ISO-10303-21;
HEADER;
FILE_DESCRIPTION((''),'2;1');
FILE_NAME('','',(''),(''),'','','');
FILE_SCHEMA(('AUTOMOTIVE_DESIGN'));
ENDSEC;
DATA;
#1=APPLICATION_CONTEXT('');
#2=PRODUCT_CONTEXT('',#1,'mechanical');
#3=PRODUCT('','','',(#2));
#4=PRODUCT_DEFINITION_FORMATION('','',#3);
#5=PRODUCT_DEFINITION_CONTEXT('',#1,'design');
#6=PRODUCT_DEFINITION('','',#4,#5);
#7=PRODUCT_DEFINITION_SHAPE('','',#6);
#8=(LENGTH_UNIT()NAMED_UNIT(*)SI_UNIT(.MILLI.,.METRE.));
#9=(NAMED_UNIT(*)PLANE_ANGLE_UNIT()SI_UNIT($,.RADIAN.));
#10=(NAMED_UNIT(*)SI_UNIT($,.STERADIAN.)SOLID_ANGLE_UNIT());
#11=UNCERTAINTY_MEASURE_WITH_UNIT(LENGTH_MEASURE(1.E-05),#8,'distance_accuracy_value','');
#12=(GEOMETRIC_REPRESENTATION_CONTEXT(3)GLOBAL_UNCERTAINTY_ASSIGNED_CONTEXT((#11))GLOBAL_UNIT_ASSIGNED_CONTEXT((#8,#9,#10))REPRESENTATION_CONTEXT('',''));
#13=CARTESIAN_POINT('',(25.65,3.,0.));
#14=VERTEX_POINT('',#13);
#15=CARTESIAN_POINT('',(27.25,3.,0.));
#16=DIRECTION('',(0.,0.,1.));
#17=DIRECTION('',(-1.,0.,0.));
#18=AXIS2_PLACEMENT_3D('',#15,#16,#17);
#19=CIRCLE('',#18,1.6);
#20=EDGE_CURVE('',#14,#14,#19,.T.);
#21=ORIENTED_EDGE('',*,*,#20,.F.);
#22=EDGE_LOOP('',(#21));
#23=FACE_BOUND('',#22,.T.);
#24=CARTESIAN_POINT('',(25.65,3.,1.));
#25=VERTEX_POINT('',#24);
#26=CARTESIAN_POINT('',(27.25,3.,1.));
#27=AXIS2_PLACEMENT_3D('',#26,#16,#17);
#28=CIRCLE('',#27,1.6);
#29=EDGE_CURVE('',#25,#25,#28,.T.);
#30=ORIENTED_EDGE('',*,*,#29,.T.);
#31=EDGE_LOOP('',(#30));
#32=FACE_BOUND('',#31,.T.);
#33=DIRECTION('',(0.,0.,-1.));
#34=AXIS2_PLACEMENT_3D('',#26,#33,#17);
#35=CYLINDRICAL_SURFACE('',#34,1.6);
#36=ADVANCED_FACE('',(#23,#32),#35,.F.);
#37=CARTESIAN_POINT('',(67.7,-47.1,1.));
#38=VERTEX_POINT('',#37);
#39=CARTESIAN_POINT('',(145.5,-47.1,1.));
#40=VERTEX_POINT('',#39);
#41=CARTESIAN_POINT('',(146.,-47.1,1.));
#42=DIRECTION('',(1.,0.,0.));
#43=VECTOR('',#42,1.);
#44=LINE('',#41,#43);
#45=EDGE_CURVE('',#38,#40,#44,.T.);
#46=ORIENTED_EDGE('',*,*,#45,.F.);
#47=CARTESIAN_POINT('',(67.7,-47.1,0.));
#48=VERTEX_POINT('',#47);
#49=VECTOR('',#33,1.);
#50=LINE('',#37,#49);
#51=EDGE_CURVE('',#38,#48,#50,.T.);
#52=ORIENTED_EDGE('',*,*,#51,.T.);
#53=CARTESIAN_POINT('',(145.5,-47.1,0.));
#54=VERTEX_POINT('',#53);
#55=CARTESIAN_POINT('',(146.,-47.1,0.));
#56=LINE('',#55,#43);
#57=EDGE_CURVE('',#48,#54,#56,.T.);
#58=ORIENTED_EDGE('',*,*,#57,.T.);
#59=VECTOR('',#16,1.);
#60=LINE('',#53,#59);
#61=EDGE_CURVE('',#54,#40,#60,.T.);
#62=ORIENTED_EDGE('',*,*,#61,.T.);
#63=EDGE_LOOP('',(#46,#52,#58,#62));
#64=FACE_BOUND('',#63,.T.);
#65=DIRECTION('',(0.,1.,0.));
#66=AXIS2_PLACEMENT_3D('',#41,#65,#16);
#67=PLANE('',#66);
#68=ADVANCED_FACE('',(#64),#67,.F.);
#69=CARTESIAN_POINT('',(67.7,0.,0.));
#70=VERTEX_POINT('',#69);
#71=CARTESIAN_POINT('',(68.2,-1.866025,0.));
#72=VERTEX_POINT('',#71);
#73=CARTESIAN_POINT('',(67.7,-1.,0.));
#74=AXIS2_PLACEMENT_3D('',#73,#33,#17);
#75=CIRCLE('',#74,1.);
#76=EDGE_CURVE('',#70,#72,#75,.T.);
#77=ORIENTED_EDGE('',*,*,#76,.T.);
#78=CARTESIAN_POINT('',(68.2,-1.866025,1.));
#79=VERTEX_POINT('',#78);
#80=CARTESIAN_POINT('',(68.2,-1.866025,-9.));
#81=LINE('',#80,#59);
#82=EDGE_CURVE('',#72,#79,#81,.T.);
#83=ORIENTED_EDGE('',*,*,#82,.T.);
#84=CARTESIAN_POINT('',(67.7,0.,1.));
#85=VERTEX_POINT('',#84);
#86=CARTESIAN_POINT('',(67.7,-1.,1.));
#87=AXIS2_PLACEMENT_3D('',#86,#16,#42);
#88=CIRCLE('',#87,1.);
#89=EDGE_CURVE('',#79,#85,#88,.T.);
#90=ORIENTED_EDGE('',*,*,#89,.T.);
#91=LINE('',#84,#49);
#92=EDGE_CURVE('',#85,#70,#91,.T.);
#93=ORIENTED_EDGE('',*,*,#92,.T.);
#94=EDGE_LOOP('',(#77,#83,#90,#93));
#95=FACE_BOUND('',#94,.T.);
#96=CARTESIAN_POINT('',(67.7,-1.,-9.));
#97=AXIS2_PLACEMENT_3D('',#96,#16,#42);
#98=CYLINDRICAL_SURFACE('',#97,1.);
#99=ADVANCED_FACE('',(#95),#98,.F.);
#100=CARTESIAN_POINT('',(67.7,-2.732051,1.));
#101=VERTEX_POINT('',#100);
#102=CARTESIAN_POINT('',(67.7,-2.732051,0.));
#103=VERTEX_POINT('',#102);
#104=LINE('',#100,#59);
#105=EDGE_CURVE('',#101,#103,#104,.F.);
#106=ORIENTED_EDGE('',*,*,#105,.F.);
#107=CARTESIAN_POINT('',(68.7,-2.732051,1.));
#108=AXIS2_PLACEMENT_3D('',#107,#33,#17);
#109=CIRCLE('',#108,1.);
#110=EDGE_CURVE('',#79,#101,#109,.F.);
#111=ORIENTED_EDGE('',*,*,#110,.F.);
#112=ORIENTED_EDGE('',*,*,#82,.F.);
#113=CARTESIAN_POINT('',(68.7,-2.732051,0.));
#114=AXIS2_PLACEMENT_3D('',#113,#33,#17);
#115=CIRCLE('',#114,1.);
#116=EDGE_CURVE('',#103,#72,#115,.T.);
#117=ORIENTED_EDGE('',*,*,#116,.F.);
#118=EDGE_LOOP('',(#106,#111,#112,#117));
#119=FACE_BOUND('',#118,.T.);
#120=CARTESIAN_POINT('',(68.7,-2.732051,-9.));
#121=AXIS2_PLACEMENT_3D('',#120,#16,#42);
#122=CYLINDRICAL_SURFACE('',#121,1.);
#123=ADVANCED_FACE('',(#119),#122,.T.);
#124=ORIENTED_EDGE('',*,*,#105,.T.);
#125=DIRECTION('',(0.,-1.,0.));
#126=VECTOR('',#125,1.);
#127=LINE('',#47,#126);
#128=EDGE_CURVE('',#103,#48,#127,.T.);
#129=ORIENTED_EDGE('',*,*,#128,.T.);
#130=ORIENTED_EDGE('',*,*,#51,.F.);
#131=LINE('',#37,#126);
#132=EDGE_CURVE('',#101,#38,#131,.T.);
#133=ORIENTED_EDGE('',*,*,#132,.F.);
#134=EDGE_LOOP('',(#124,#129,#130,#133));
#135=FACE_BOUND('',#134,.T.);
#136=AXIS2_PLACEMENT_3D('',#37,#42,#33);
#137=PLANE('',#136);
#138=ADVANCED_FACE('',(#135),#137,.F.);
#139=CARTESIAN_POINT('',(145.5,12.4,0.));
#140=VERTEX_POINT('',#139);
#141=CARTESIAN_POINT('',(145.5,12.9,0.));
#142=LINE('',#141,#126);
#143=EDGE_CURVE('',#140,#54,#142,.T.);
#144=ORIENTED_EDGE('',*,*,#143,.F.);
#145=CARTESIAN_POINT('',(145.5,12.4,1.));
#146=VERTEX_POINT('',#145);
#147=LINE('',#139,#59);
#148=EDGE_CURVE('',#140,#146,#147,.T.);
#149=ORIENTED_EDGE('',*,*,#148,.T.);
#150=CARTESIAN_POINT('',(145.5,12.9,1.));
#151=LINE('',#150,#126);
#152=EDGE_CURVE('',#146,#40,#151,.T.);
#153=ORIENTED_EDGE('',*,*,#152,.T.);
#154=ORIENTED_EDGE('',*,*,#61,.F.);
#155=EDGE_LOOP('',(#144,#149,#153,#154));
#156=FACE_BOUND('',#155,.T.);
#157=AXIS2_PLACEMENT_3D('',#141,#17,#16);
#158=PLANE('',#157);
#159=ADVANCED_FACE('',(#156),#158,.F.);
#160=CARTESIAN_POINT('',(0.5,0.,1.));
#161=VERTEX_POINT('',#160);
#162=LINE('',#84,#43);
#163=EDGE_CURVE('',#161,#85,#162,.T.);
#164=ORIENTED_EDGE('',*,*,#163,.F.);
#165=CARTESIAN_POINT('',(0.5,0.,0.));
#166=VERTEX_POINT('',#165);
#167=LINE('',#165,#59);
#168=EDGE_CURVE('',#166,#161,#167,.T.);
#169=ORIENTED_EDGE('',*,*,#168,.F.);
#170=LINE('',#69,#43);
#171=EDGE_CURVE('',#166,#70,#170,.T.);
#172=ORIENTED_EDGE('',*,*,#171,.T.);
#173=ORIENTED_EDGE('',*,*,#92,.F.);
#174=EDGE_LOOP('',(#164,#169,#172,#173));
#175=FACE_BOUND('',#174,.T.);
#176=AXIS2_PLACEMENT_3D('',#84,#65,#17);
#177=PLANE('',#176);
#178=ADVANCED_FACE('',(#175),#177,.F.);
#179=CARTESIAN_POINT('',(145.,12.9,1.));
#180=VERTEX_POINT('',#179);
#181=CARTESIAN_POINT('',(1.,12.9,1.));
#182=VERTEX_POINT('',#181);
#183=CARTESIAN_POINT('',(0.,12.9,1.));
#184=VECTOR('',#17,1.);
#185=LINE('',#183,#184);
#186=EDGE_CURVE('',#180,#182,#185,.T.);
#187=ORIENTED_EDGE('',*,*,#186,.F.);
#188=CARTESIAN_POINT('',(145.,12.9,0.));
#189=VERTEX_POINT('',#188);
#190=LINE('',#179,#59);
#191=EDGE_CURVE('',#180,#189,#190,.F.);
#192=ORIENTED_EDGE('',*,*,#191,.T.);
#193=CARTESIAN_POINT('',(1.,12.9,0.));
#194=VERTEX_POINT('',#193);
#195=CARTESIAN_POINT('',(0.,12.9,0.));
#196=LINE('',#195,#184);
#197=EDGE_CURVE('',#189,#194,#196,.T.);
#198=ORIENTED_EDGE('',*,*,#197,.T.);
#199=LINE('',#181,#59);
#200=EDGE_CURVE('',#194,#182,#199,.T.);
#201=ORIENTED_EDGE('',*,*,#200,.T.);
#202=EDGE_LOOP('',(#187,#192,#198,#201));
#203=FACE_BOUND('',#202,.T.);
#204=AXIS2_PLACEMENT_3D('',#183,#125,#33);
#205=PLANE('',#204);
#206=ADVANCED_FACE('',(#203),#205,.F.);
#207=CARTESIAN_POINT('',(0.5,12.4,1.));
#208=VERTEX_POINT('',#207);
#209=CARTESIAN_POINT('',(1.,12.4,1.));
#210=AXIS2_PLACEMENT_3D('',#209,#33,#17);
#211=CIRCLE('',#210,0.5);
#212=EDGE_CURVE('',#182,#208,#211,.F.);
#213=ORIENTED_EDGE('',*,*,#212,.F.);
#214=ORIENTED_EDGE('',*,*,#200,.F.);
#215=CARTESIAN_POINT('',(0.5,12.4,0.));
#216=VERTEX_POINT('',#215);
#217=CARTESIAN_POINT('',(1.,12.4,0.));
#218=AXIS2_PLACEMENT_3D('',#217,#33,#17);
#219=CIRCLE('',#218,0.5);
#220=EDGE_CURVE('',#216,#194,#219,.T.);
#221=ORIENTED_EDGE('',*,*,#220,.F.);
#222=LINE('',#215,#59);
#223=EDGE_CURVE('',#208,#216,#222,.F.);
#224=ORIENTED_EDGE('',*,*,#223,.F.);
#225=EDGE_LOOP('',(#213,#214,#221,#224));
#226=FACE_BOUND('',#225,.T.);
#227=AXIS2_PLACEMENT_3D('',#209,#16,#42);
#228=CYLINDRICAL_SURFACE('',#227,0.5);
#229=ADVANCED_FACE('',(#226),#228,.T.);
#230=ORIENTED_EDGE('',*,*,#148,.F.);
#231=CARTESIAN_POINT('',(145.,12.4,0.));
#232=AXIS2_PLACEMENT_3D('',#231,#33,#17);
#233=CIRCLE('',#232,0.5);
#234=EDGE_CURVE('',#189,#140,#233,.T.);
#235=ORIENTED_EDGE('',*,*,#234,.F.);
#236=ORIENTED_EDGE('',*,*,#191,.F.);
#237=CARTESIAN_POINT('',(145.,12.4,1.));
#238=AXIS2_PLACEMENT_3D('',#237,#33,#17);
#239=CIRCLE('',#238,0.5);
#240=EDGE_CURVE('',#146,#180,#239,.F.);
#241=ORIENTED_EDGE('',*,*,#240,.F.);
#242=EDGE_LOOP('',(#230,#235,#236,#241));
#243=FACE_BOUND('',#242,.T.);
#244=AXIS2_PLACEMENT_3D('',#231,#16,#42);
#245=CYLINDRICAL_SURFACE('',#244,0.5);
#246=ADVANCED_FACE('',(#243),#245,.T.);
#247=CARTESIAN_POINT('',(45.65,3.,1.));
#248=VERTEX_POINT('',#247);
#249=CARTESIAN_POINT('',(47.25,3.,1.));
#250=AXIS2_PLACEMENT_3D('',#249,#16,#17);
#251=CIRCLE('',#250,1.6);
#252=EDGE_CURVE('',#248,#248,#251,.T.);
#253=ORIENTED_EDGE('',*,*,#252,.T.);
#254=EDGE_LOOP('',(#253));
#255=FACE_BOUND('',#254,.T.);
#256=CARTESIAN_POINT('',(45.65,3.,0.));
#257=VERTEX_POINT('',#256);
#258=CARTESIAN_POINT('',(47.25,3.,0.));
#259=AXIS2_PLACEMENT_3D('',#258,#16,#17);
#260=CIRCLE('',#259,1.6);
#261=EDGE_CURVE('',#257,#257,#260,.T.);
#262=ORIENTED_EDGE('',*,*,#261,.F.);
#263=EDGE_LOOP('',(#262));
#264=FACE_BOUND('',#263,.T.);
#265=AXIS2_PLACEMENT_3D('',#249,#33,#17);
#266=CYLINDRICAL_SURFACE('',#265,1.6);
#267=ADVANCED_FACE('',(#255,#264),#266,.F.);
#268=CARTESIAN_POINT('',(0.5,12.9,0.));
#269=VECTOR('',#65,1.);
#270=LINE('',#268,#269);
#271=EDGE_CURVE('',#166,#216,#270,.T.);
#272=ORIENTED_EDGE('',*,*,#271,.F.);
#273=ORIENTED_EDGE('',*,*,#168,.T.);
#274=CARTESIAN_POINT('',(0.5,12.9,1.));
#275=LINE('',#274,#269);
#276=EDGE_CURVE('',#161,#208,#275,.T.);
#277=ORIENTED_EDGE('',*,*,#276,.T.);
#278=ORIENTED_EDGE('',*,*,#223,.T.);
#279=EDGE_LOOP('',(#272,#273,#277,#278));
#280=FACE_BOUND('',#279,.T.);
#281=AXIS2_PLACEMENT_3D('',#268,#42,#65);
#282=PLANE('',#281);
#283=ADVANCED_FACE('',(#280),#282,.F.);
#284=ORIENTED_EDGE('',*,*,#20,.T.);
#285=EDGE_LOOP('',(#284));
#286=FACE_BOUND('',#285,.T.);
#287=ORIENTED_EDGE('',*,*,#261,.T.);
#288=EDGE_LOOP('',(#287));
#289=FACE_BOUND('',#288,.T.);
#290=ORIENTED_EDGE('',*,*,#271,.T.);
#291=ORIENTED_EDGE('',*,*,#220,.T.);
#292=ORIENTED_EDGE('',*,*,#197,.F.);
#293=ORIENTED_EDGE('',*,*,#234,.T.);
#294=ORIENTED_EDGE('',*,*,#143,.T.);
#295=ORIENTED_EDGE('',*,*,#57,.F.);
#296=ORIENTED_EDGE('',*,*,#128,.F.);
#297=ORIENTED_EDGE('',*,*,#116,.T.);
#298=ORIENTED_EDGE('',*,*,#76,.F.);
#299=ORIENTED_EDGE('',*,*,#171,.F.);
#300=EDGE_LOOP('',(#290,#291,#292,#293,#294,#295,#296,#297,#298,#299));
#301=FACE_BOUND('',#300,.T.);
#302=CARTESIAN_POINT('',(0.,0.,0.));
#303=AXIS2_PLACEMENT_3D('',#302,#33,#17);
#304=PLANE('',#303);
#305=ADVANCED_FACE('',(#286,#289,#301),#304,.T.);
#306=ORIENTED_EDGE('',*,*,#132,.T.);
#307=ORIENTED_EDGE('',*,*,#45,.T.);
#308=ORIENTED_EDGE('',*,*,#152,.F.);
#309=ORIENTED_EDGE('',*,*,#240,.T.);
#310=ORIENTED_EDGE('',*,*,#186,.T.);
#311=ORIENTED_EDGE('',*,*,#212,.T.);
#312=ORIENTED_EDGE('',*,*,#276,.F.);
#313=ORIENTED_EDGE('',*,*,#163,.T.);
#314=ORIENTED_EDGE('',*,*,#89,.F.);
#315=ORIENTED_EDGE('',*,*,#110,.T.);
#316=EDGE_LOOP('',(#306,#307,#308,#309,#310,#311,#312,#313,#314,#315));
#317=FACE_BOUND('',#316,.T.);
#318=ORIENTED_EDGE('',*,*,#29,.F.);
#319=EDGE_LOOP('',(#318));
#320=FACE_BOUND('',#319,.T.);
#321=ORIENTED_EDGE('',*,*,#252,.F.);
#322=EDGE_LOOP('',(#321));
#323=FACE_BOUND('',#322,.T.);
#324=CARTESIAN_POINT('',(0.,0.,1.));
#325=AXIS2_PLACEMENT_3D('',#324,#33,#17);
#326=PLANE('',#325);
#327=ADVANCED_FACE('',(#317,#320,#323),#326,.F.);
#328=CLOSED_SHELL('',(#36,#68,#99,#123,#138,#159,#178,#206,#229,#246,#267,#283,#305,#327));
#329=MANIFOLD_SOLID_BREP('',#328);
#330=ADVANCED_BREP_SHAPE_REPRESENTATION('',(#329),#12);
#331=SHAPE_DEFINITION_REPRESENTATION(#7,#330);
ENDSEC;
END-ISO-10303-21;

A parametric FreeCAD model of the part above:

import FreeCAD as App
import Part
import Sketcher


def edges_at(feature, points):
    """Names of the edges that pass closest to the given points."""
    edges = feature.Shape.Edges
    near = lambda p: min(range(len(edges)), key=lambda i: edges[i].distToShape(Part.Vertex(*p))[0])
    return sorted({f"Edge{near(p) + 1}" for p in points})


def add_polygon(sketch, points):
    """Adds a closed chain of lines whose ends are joined by coincident constraints."""
    first, n = sketch.GeometryCount, len(points)
    for a, b in zip(points, points[1:] + points[:1]):
        sketch.addGeometry(Part.LineSegment(App.Vector(*a, 0), App.Vector(*b, 0)), False)
    for i in range(n):
        sketch.addConstraint(Sketcher.Constraint("Coincident", first + i, 2, first + (i + 1) % n, 1))

doc = App.newDocument("Part")
body = doc.addObject("PartDesign::Body", "Body")

# Sketch on XY plane
sketch1 = body.newObject("Sketcher::SketchObject", "Sketch")
sketch1.AttachmentSupport = (doc.getObject("XY_Plane"), [""])
sketch1.MapMode = "FlatFace"
add_polygon(sketch1, [(0, 12.9), (0, 0), (67.7, 0), (67.7, -47.1), (146, -47.1), (146, 12.9)])  # lines 0-5
sketch1.addGeometry(Part.Circle(App.Vector(47.2, 3, 0), App.Vector(0, 0, 1), 1.6), False)  # 6
sketch1.addGeometry(Part.Circle(App.Vector(27.2, 3, 0), App.Vector(0, 0, 1), 1.6), False)  # 7
sketch1.addConstraint([
    Sketcher.Constraint("Vertical", 0),
    Sketcher.Constraint("Horizontal", 1),
    Sketcher.Constraint("Vertical", 2),
    Sketcher.Constraint("Horizontal", 3),
    Sketcher.Constraint("Vertical", 4),
    Sketcher.Constraint("Horizontal", 5),
    Sketcher.Constraint("Coincident", 0, 2, -1, 1),
    Sketcher.Constraint("Equal", 6, 7),
    Sketcher.Constraint("Horizontal", 6, 3, 7, 3),
    Sketcher.Constraint("Diameter", 6, 3.2),
    Sketcher.Constraint("DistanceX", 5, 2, 5, 1, 146.0),
    Sketcher.Constraint("DistanceY", 4, 1, 4, 2, 60.0),
    Sketcher.Constraint("DistanceX", 1, 1, 1, 2, 67.7),
    Sketcher.Constraint("DistanceY", 0, 2, 0, 1, 12.9),
    Sketcher.Constraint("DistanceY", -1, 1, 6, 3, 3.0),
    Sketcher.Constraint("DistanceX", 7, 3, 6, 3, 20.0),
    Sketcher.Constraint("DistanceX", -1, 1, 6, 3, 47.25),
])
pad1 = body.newObject("PartDesign::Pad", "Pad")
pad1.Profile = sketch1
pad1.Length = 1

# Sketch on XY plane
sketch2 = body.newObject("Sketcher::SketchObject", "Sketch001")
sketch2.AttachmentSupport = (doc.getObject("XY_Plane"), [""])
sketch2.MapMode = "FlatFace"
sketch2.AttachmentOffset = App.Placement(App.Vector(0, 0, 1), App.Rotation())
sketch2.addGeometry(Part.Circle(App.Vector(67.7, -1, 0), App.Vector(0, 0, 1), 1), False)
sketch2.addConstraint([
    Sketcher.Constraint("Diameter", 0, 2.0),
    Sketcher.Constraint("DistanceY", 0, 3, -1, 1, 1.0),
    Sketcher.Constraint("DistanceX", -1, 1, 0, 3, 67.7),
])
pocket1 = body.newObject("PartDesign::Pocket", "Pocket")
pocket1.Profile = sketch2
pocket1.Length = 10
doc.recompute()

fillet = body.newObject("PartDesign::Fillet", "Fillet")
fillet.Base = (pocket1, edges_at(pocket1, [(67.7, -2, 0.5)]))
fillet.Radius = 1

# Sketch on XY plane
sketch3 = body.newObject("Sketcher::SketchObject", "Sketch002")
sketch3.AttachmentSupport = (doc.getObject("XY_Plane"), [""])
sketch3.MapMode = "FlatFace"
sketch3.AttachmentOffset = App.Placement(App.Vector(0, 0, 1), App.Rotation())
add_polygon(sketch3, [(0, 12.9), (0, 0), (0.5, 0), (0.5, 12.9)])  # lines 0-3
add_polygon(sketch3, [(145.5, 12.9), (145.5, -47.1), (146, -47.1), (146, 12.9)])  # lines 4-7
sketch3.addConstraint([
    Sketcher.Constraint("Vertical", 0),
    Sketcher.Constraint("Horizontal", 1),
    Sketcher.Constraint("Vertical", 2),
    Sketcher.Constraint("Horizontal", 3),
    Sketcher.Constraint("Vertical", 4),
    Sketcher.Constraint("Horizontal", 5),
    Sketcher.Constraint("Vertical", 6),
    Sketcher.Constraint("Horizontal", 7),
    Sketcher.Constraint("Coincident", 0, 2, -1, 1),
    Sketcher.Constraint("Horizontal", 3, 2, 6, 2),
    Sketcher.Constraint("Equal", 3, 5),
    Sketcher.Constraint("DistanceY", 4, 2, 4, 1, 60.0),
    Sketcher.Constraint("DistanceX", 1, 1, 1, 2, 0.5),
    Sketcher.Constraint("DistanceY", 0, 2, 0, 1, 12.9),
    Sketcher.Constraint("DistanceX", -1, 1, 5, 2, 146.0),
])
pocket2 = body.newObject("PartDesign::Pocket", "Pocket001")
pocket2.Profile = sketch3
pocket2.Type = "ThroughAll"
doc.recompute()

fillet2 = body.newObject("PartDesign::Fillet", "Fillet001")
fillet2.Base = (pocket2, edges_at(pocket2, [(0.5, 12.9, 0.5), (145.5, 12.9, 0.5)]))
fillet2.Radius = 0.5

doc.recompute()
